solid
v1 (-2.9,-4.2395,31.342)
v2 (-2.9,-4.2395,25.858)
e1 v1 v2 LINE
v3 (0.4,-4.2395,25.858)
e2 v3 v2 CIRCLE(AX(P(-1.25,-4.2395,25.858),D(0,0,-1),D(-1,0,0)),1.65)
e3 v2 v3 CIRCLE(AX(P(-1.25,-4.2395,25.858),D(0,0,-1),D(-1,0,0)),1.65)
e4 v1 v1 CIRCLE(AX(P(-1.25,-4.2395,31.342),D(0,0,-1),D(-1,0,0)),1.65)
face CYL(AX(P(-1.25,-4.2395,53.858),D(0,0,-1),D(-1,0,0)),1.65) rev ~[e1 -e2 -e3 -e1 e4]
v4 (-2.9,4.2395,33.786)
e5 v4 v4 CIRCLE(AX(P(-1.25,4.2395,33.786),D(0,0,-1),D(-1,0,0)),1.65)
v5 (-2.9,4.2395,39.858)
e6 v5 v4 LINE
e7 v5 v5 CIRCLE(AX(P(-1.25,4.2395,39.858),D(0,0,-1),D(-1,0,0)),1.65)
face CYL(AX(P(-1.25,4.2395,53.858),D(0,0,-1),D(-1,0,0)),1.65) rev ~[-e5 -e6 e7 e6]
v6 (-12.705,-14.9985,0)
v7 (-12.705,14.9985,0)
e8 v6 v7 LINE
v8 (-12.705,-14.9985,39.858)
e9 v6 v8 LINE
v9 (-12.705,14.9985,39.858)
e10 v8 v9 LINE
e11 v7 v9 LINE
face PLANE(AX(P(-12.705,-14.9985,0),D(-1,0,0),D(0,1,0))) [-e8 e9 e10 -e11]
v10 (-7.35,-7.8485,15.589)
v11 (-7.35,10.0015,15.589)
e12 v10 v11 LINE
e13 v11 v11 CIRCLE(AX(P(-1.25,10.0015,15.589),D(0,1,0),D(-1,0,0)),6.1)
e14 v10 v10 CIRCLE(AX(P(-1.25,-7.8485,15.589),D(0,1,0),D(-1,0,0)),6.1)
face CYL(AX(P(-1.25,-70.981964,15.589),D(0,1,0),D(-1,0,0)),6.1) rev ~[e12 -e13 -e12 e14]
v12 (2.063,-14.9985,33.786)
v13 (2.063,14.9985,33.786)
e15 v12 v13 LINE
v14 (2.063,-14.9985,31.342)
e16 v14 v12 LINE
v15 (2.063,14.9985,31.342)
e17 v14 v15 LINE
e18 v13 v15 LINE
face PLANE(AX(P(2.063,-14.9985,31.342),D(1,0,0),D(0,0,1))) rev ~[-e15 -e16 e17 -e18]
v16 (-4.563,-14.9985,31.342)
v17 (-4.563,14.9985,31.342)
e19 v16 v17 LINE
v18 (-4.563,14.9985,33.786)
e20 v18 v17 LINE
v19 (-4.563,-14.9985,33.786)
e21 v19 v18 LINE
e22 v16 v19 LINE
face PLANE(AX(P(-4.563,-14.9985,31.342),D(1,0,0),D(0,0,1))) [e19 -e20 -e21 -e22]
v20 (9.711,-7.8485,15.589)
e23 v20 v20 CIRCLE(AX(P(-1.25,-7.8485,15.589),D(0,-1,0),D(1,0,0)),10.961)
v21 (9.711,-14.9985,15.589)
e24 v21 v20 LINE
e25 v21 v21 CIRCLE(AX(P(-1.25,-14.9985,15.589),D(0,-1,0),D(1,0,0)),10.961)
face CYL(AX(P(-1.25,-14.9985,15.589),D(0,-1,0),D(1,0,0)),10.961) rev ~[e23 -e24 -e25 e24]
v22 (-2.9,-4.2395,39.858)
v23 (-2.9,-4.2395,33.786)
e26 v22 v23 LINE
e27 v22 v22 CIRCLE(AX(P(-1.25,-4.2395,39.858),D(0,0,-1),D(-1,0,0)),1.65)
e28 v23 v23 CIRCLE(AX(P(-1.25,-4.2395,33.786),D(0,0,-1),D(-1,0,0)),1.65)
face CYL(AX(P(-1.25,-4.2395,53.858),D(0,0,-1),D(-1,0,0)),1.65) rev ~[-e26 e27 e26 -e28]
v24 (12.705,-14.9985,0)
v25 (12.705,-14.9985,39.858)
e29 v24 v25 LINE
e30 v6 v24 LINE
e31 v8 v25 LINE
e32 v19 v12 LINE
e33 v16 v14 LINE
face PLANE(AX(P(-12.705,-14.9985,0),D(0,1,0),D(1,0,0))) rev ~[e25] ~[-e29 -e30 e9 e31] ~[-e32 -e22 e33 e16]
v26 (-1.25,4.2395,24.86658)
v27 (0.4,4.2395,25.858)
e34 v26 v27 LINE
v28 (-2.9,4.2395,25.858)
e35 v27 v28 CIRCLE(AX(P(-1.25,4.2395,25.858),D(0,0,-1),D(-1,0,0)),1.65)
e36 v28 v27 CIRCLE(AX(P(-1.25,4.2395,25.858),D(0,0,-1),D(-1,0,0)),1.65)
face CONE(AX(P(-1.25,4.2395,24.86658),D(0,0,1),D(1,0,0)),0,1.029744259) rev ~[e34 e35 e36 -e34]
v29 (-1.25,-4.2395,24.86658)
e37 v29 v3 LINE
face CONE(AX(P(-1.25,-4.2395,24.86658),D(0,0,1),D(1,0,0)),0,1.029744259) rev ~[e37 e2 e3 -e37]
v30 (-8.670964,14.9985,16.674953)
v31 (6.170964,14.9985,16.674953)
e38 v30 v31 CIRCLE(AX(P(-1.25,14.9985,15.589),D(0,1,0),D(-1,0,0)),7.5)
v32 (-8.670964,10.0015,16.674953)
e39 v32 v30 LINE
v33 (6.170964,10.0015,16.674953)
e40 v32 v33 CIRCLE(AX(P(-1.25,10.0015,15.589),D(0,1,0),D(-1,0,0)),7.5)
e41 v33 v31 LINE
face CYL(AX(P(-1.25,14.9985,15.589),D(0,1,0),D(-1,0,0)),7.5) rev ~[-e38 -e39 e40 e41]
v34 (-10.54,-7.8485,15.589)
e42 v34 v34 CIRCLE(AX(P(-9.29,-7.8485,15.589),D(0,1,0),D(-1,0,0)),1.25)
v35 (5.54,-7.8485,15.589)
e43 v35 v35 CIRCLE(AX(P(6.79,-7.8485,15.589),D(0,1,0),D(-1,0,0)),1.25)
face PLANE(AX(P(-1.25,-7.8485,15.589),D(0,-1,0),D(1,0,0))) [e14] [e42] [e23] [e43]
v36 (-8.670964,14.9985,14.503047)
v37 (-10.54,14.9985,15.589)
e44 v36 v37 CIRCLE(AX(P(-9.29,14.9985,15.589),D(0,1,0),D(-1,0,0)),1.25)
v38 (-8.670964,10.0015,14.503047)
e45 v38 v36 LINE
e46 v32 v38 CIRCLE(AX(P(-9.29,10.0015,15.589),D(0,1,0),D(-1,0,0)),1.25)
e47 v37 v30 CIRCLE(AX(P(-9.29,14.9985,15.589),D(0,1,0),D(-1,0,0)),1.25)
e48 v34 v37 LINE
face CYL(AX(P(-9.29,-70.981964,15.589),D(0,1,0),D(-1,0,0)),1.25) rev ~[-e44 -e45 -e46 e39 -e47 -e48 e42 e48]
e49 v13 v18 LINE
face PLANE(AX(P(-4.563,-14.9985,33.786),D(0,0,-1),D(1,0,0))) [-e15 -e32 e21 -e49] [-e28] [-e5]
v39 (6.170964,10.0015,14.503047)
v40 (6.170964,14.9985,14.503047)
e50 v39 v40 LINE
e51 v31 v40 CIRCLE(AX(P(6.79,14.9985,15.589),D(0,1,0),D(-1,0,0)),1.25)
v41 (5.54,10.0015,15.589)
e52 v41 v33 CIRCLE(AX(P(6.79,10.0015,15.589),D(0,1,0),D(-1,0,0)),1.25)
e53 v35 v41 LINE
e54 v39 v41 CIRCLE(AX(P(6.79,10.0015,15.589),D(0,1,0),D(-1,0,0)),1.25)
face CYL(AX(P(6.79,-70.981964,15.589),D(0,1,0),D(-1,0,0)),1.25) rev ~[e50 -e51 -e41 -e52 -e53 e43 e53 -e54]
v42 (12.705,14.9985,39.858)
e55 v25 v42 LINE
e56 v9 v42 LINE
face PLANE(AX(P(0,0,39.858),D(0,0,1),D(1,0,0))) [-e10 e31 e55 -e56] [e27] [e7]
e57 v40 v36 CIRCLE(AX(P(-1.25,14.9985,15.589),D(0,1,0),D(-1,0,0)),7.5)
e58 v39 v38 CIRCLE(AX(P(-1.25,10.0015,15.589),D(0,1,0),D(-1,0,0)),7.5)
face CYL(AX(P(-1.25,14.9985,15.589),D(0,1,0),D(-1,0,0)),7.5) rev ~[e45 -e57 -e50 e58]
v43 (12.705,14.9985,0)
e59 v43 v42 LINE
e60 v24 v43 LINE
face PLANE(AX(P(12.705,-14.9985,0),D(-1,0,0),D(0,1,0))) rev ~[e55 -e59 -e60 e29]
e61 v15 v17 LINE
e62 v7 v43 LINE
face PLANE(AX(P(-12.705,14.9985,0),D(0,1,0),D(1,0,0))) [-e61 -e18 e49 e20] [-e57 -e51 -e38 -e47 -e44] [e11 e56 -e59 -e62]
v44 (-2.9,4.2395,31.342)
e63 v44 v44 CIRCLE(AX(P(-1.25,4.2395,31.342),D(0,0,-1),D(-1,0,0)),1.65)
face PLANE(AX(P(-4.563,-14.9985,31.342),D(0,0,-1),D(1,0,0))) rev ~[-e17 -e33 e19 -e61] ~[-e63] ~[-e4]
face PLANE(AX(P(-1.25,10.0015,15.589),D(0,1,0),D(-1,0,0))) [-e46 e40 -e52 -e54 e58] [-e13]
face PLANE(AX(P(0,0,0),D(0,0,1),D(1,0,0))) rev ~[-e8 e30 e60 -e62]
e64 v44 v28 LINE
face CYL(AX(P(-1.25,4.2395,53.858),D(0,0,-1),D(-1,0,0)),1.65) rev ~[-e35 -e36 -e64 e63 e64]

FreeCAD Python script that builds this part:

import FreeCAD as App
import Part
import Sketcher

V = App.Vector
Q = App.Units.Quantity

doc = App.newDocument("Part")
params = doc.addObject("Spreadsheet::Sheet", "Params")
for row, (alias, value) in enumerate([
    ("sketch1_width", "25.41 mm"),
    ("pad1_length", "39.858 mm"),
    ("sketch2_diameter", "3.3 mm"),
    ("hole_diameter", "3.3 mm"),
    ("hole_depth", "14 mm"),
    ("sketch4_diameter", "12.2 mm"),
    ("hole2_diameter", "12.2 mm"),
    ("sketch5_diameter", "2.5 mm"),
    ("hole3_diameter", "2.5 mm"),
    ("pocket2_length", "7.15 mm"),
    ("sketch7_diameter", "15 mm"),
    ("pocket3_length", "4.997 mm"),
], start=1):
    params.set(f"A{row}", alias)
    params.set(f"B{row}", "=" + value)
    params.setAlias(f"B{row}", alias)

body = doc.addObject("PartDesign::Body", "Body")

sketch1 = body.newObject("Sketcher::SketchObject", "Sketch")
sketch1.AttachmentSupport = (doc.getObject("XY_Plane"), [""])
sketch1.MapMode = "FlatFace"
sketch1.addGeometry(Part.LineSegment(V(-12.705, 14.9985, 0), V(-12.705, -14.9985, 0)), False)
sketch1.addGeometry(Part.LineSegment(V(-12.705, -14.9985, 0), V(12.705, -14.9985, 0)), False)
sketch1.addGeometry(Part.LineSegment(V(12.705, -14.9985, 0), V(12.705, 14.9985, 0)), False)
sketch1.addGeometry(Part.LineSegment(V(12.705, 14.9985, 0), V(-12.705, 14.9985, 0)), False)
sketch1.addConstraint(Sketcher.Constraint("Coincident", 0, 2, 1, 1))
sketch1.addConstraint(Sketcher.Constraint("Coincident", 1, 2, 2, 1))
sketch1.addConstraint(Sketcher.Constraint("Coincident", 2, 2, 3, 1))
sketch1.addConstraint(Sketcher.Constraint("Coincident", 3, 2, 0, 1))
sketch1.addConstraint(Sketcher.Constraint("Vertical", 0))
sketch1.addConstraint(Sketcher.Constraint("Horizontal", 1))
sketch1.addConstraint(Sketcher.Constraint("Vertical", 2))
sketch1.addConstraint(Sketcher.Constraint("Horizontal", 3))
sketch1.addConstraint(Sketcher.Constraint("Symmetric", 0, 2, 2, 2, -1, 1))
sketch1.addConstraint(Sketcher.Constraint("DistanceX", 1, 1, 1, 2, Q("25.41 mm")))
sketch1.addConstraint(Sketcher.Constraint("DistanceY", 0, 2, 0, 1, Q("29.997 mm")))
sketch1.setExpression("Constraints[9]", "Params.sketch1_width")
pad1 = body.newObject("PartDesign::Pad", "Pad")
pad1.Profile = sketch1
pad1.setExpression("Length", "Params.pad1_length")

sketch2 = body.newObject("Sketcher::SketchObject", "Sketch001")
sketch2.AttachmentSupport = (doc.getObject("XY_Plane"), [""])
sketch2.MapMode = "FlatFace"
sketch2.AttachmentOffset = App.Placement(V(0, 0, 39.858), App.Rotation())
sketch2.addGeometry(Part.Circle(V(-1.25, 4.2395, 0), V(0, 0, 1), 1.65), False)
sketch2.addGeometry(Part.Circle(V(-1.25, -4.2395, 0), V(0, 0, 1), 1.65), False)
sketch2.addConstraint(Sketcher.Constraint("Equal", 0, 1))
sketch2.addConstraint(Sketcher.Constraint("Symmetric", 0, 3, 1, 3, -1))
sketch2.addConstraint(Sketcher.Constraint("Diameter", 0, Q("3.3 mm")))
sketch2.addConstraint(Sketcher.Constraint("DistanceX", 0, 3, -1, 1, Q("1.25 mm")))
sketch2.addConstraint(Sketcher.Constraint("DistanceY", 1, 3, 0, 3, Q("8.479 mm")))
sketch2.setExpression("Constraints[2]", "Params.sketch2_diameter")
doc.recompute()
hole = body.newObject("PartDesign::Hole", "Hole")
hole.Profile = sketch2
hole.ThreadType = "None"
hole.setExpression("Diameter", "Params.hole_diameter")
hole.DepthType = "Dimension"
hole.setExpression("Depth", "Params.hole_depth")
hole.DrillPoint = "Angled"
hole.DrillPointAngle = 118

sketch3 = body.newObject("Sketcher::SketchObject", "Sketch002")
sketch3.AttachmentSupport = (doc.getObject("XZ_Plane"), [""])
sketch3.MapMode = "FlatFace"
sketch3.AttachmentOffset = App.Placement(V(0, 0, 14.9985), App.Rotation())
sketch3.addGeometry(Part.LineSegment(V(-4.563, 33.786, 0), V(-4.563, 31.342, 0)), False)
sketch3.addGeometry(Part.LineSegment(V(-4.563, 31.342, 0), V(2.063, 31.342, 0)), False)
sketch3.addGeometry(Part.LineSegment(V(2.063, 31.342, 0), V(2.063, 33.786, 0)), False)
sketch3.addGeometry(Part.LineSegment(V(2.063, 33.786, 0), V(-4.563, 33.786, 0)), False)
sketch3.addConstraint(Sketcher.Constraint("Coincident", 0, 2, 1, 1))
sketch3.addConstraint(Sketcher.Constraint("Coincident", 1, 2, 2, 1))
sketch3.addConstraint(Sketcher.Constraint("Coincident", 2, 2, 3, 1))
sketch3.addConstraint(Sketcher.Constraint("Coincident", 3, 2, 0, 1))
sketch3.addConstraint(Sketcher.Constraint("Vertical", 0))
sketch3.addConstraint(Sketcher.Constraint("Horizontal", 1))
sketch3.addConstraint(Sketcher.Constraint("Vertical", 2))
sketch3.addConstraint(Sketcher.Constraint("Horizontal", 3))
sketch3.addConstraint(Sketcher.Constraint("DistanceX", 1, 1, 1, 2, Q("6.626 mm")))
sketch3.addConstraint(Sketcher.Constraint("DistanceY", 0, 2, 0, 1, Q("2.444 mm")))
sketch3.addConstraint(Sketcher.Constraint("DistanceX", 0, 2, -1, 1, Q("4.563 mm")))
sketch3.addConstraint(Sketcher.Constraint("DistanceY", -1, 1, 0, 2, Q("31.342 mm")))
pocket1 = body.newObject("PartDesign::Pocket", "Pocket")
pocket1.Profile = sketch3
pocket1.Type = "ThroughAll"

sketch4 = body.newObject("Sketcher::SketchObject", "Sketch003")
sketch4.AttachmentSupport = (doc.getObject("XZ_Plane"), [""])
sketch4.MapMode = "FlatFace"
sketch4.AttachmentOffset = App.Placement(V(0, 0, 14.9985), App.Rotation())
sketch4.addGeometry(Part.Circle(V(-1.25, 15.589, 0), V(0, 0, 1), 6.1), False)
sketch4.addConstraint(Sketcher.Constraint("Diameter", 0, Q("12.2 mm")))
sketch4.addConstraint(Sketcher.Constraint("DistanceX", 0, 3, -1, 1, Q("1.25 mm")))
sketch4.addConstraint(Sketcher.Constraint("DistanceY", -1, 1, 0, 3, Q("15.589 mm")))
sketch4.setExpression("Constraints[0]", "Params.sketch4_diameter")
doc.recompute()
hole2 = body.newObject("PartDesign::Hole", "Hole001")
hole2.Profile = sketch4
hole2.ThreadType = "None"
hole2.setExpression("Diameter", "Params.hole2_diameter")
hole2.DepthType = "ThroughAll"

sketch5 = body.newObject("Sketcher::SketchObject", "Sketch004")
sketch5.AttachmentSupport = (doc.getObject("XZ_Plane"), [""])
sketch5.MapMode = "FlatFace"
sketch5.AttachmentOffset = App.Placement(V(0, 0, 14.9985), App.Rotation())
sketch5.addGeometry(Part.Circle(V(-9.29, 15.589, 0), V(0, 0, 1), 1.25), False)
sketch5.addGeometry(Part.Circle(V(6.79, 15.589, 0), V(0, 0, 1), 1.25), False)
sketch5.addConstraint(Sketcher.Constraint("Equal", 0, 1))
sketch5.addConstraint(Sketcher.Constraint("Horizontal", 0, 3, 1, 3))
sketch5.addConstraint(Sketcher.Constraint("Diameter", 0, Q("2.5 mm")))
sketch5.addConstraint(Sketcher.Constraint("DistanceX", 0, 3, -1, 1, Q("9.29 mm")))
sketch5.addConstraint(Sketcher.Constraint("DistanceX", -1, 1, 1, 3, Q("6.79 mm")))
sketch5.addConstraint(Sketcher.Constraint("DistanceY", -1, 1, 0, 3, Q("15.589 mm")))
sketch5.setExpression("Constraints[2]", "Params.sketch5_diameter")
doc.recompute()
hole3 = body.newObject("PartDesign::Hole", "Hole002")
hole3.Profile = sketch5
hole3.ThreadType = "None"
hole3.setExpression("Diameter", "Params.hole3_diameter")
hole3.DepthType = "ThroughAll"

sketch6 = body.newObject("Sketcher::SketchObject", "Sketch005")
sketch6.AttachmentSupport = (doc.getObject("XZ_Plane"), [""])
sketch6.MapMode = "FlatFace"
sketch6.AttachmentOffset = App.Placement(V(0, 0, 14.9985), App.Rotation())
sketch6.addGeometry(Part.Circle(V(-1.25, 15.589, 0), V(0, 0, 1), 10.961), False)
sketch6.addConstraint(Sketcher.Constraint("Diameter", 0, Q("21.922 mm")))
sketch6.addConstraint(Sketcher.Constraint("DistanceX", 0, 3, -1, 1, Q("1.25 mm")))
sketch6.addConstraint(Sketcher.Constraint("DistanceY", -1, 1, 0, 3, Q("15.589 mm")))
pocket2 = body.newObject("PartDesign::Pocket", "Pocket001")
pocket2.Profile = sketch6
pocket2.setExpression("Length", "Params.pocket2_length")

sketch7 = body.newObject("Sketcher::SketchObject", "Sketch006")
sketch7.AttachmentSupport = (doc.getObject("XZ_Plane"), [""])
sketch7.MapMode = "FlatFace"
sketch7.AttachmentOffset = App.Placement(V(0, 0, -14.9985), App.Rotation())
sketch7.addGeometry(Part.Circle(V(-1.25, 15.589, 0), V(0, 0, 1), 7.5), False)
sketch7.addConstraint(Sketcher.Constraint("Diameter", 0, Q("15 mm")))
sketch7.addConstraint(Sketcher.Constraint("DistanceX", 0, 3, -1, 1, Q("1.25 mm")))
sketch7.addConstraint(Sketcher.Constraint("DistanceY", -1, 1, 0, 3, Q("15.589 mm")))
sketch7.setExpression("Constraints[0]", "Params.sketch7_diameter")
pocket3 = body.newObject("PartDesign::Pocket", "Pocket002")
pocket3.Profile = sketch7
pocket3.setExpression("Length", "Params.pocket3_length")
pocket3.Reversed = True

doc.recompute()
